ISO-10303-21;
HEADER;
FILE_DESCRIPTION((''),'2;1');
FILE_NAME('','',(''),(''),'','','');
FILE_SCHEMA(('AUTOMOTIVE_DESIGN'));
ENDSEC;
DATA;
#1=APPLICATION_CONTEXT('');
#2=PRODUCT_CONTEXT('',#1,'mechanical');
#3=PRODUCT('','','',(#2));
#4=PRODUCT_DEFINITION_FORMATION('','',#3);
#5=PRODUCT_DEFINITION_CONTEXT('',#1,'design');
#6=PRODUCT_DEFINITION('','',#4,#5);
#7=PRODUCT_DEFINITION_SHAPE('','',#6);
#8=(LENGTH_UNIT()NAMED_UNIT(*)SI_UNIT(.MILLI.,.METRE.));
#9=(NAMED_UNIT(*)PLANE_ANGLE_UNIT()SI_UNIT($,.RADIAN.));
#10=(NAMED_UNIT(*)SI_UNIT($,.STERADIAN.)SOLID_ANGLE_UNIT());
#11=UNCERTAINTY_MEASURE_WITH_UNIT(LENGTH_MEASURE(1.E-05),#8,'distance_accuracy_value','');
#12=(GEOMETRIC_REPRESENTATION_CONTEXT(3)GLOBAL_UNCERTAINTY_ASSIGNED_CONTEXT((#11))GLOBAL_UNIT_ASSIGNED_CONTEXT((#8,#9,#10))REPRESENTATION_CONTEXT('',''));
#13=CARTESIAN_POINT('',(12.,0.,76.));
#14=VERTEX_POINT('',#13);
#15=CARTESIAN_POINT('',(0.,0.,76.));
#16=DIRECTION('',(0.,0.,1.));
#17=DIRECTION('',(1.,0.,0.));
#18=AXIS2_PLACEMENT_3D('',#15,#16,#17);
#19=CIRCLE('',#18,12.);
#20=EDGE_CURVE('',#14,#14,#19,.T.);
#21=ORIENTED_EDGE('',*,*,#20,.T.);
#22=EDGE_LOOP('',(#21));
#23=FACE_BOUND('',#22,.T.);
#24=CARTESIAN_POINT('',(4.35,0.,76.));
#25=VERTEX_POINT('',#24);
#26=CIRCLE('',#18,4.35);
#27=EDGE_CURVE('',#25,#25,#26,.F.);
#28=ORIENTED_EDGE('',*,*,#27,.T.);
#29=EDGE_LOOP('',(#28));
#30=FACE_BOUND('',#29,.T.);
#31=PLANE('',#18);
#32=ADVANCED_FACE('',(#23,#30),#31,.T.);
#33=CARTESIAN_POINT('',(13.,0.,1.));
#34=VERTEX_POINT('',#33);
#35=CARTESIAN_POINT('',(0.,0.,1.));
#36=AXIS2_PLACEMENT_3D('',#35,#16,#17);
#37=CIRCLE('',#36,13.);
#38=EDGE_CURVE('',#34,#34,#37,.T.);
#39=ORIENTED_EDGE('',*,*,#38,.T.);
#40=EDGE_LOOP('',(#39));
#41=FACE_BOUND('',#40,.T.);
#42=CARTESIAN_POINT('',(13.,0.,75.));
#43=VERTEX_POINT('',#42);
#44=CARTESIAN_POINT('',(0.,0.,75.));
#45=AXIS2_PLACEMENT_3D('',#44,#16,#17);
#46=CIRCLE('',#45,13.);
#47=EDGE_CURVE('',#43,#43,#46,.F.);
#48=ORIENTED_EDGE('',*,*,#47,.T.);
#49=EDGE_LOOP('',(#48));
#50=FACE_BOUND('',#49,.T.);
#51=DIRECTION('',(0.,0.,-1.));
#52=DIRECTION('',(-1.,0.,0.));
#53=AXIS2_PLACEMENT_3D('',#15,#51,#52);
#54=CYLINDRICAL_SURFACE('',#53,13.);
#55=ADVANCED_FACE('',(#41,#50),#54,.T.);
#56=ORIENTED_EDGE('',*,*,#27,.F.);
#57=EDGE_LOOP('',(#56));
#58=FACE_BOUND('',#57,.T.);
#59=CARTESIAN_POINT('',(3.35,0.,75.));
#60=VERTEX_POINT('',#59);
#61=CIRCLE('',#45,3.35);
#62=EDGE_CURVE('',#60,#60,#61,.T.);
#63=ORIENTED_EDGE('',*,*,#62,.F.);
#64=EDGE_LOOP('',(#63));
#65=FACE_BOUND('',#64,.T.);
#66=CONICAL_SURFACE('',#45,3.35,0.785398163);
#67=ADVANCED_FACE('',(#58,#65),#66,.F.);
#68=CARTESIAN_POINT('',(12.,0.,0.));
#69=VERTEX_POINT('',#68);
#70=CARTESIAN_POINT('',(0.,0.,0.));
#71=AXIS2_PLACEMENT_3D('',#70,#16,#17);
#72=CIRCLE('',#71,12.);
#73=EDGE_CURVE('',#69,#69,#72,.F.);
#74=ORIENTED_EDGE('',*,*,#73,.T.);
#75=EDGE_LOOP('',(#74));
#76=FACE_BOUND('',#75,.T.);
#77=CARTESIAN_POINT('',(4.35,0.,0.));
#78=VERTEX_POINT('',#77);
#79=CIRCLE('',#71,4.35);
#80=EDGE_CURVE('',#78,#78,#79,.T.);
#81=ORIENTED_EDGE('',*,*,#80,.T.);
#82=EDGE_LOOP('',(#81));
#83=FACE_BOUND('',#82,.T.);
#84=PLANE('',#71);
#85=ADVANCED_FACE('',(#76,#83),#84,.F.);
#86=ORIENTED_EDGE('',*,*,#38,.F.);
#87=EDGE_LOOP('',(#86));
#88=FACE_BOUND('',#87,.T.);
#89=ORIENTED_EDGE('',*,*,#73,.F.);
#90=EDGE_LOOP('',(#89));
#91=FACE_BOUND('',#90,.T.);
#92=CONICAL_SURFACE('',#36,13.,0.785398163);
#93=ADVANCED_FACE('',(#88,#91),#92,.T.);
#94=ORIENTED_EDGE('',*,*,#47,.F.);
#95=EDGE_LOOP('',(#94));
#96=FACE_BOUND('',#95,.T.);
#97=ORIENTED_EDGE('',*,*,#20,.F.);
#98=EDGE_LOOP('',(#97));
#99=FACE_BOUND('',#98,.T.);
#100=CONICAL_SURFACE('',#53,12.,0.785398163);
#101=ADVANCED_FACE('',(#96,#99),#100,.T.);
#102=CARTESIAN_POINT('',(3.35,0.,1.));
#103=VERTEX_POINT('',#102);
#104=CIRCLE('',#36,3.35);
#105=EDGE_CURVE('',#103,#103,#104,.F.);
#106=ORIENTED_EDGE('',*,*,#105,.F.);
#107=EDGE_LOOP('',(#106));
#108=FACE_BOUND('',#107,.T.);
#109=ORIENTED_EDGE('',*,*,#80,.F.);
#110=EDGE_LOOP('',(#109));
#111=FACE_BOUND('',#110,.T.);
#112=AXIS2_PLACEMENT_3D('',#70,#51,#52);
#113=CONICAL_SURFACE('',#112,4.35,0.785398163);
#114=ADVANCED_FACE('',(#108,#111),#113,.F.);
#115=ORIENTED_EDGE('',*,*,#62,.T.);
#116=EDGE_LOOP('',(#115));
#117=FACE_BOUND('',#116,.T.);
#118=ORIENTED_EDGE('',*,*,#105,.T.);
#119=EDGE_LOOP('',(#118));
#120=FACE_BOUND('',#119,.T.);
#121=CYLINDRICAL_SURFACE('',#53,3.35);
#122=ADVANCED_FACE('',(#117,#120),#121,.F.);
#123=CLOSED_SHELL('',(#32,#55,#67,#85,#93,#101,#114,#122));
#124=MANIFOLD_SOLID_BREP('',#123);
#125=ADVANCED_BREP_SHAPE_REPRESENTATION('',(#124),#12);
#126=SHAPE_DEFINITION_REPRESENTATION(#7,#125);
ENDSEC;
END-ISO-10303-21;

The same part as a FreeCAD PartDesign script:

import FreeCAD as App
import Part
import Sketcher
Q = App.Units.Quantity


def edges_at(feature, points):
    """Names of the edges that pass closest to the given points."""
    edges = feature.Shape.Edges
    near = lambda p: min(range(len(edges)), key=lambda i: edges[i].distToShape(Part.Vertex(*p))[0])
    return sorted({f"Edge{near(p) + 1}" for p in points})

doc = App.newDocument("Part")
params = doc.addObject("Spreadsheet::Sheet", "Params")
for row, (alias, value) in enumerate([
    ("sketch1_diameter", "26 mm"),
    ("sketch1_diameter2", "6.7 mm"),
    ("pad1_length", "76 mm"),
    ("chamfer_size", "1 mm"),
], start=1):
    params.set(f"A{row}", alias)
    params.set(f"B{row}", "=" + value)
    params.setAlias(f"B{row}", alias)

body = doc.addObject("PartDesign::Body", "Body")

# Sketch on XY plane
sketch1 = body.newObject("Sketcher::SketchObject", "Sketch")
sketch1.AttachmentSupport = (doc.getObject("XY_Plane"), [""])
sketch1.MapMode = "FlatFace"
sketch1.addGeometry(Part.Circle(App.Vector(0, 0, 0), App.Vector(0, 0, 1), 13), False)
sketch1.addGeometry(Part.Circle(App.Vector(0, 0, 0), App.Vector(0, 0, 1), 3.4), False)
sketch1.addConstraint(Sketcher.Constraint("Coincident", 0, 3, -1, 1))
sketch1.addConstraint(Sketcher.Constraint("Coincident", 1, 3, -1, 1))
sketch1.addConstraint(Sketcher.Constraint("Diameter", 0, Q("26 mm")))
sketch1.addConstraint(Sketcher.Constraint("Diameter", 1, Q("6.7 mm")))
sketch1.setExpression("Constraints[2]", "Params.sketch1_diameter")
sketch1.setExpression("Constraints[3]", "Params.sketch1_diameter2")
pad1 = body.newObject("PartDesign::Pad", "Pad")
pad1.Profile = sketch1
pad1.setExpression("Length", "Params.pad1_length")
doc.recompute()

chamfer = body.newObject("PartDesign::Chamfer", "Chamfer")
chamfer.Base = (pad1, edges_at(pad1, [
    (-13, 0, 0),
    (-13, 0, 76),
    (-3.35, 0, 0),
    (-3.35, 0, 76),
]))
chamfer.setExpression("Size", "Params.chamfer_size")

doc.recompute()
